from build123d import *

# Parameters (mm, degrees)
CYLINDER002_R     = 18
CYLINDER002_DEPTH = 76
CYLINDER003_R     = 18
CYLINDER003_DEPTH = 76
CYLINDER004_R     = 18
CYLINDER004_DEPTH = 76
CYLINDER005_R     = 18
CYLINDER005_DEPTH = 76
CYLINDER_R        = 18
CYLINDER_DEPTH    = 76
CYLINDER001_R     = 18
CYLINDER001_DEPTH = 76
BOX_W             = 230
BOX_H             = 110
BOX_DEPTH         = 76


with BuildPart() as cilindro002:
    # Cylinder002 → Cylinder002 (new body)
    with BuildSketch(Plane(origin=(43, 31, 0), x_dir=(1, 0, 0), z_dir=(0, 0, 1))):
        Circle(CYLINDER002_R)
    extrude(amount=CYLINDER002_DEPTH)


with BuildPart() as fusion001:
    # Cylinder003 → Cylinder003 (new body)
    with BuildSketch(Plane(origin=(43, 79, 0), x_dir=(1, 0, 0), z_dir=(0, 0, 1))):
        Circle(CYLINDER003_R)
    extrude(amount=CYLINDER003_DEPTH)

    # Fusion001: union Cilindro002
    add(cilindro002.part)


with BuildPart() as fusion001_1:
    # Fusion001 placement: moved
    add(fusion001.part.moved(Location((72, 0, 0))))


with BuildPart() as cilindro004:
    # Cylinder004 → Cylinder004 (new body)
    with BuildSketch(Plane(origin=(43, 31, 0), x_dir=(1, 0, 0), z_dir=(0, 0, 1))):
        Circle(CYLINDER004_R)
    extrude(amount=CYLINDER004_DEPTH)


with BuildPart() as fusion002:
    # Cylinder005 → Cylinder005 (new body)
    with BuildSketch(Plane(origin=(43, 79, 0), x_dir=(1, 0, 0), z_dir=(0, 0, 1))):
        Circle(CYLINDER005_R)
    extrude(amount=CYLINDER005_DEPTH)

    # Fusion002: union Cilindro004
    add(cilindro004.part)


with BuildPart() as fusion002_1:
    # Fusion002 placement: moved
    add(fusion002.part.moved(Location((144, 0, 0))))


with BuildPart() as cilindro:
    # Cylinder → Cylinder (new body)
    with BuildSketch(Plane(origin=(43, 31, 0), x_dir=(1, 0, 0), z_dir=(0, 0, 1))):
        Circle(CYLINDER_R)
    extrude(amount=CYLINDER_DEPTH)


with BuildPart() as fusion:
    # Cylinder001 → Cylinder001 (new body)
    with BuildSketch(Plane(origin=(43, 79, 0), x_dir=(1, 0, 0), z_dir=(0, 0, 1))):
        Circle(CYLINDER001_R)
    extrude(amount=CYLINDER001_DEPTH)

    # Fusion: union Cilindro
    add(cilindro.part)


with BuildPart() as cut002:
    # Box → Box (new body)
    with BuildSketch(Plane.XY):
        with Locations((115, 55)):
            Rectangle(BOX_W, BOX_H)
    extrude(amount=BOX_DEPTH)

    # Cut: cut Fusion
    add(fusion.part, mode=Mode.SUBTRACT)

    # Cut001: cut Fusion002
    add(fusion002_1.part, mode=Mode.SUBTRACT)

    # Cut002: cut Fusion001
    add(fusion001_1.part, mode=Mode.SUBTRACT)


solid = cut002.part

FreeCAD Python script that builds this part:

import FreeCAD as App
import Part
import Sketcher

V = App.Vector

doc = App.newDocument("Part")
params = doc.addObject("Spreadsheet::Sheet", "Params")
for row, (alias, value) in enumerate([
    ("sketch1_diameter", "36 mm"),
    ("pad1_length", "76 mm"),
    ("sketch2_diameter", "36 mm"),
    ("pad2_length", "76 mm"),
    ("sketch3_diameter", "36 mm"),
    ("pad3_length", "76 mm"),
    ("sketch4_diameter", "36 mm"),
    ("pad4_length", "76 mm"),
    ("sketch5_diameter", "36 mm"),
    ("pad5_length", "76 mm"),
    ("sketch6_diameter", "36 mm"),
    ("pad6_length", "76 mm"),
    ("sketch7_width", "230 mm"),
    ("sketch7_height", "110 mm"),
    ("pad7_length", "76 mm"),
], start=1):
    params.set(f"A{row}", alias)
    params.set(f"B{row}", "=" + value)
    params.setAlias(f"B{row}", alias)

body = doc.addObject("PartDesign::Body", "Body")

# Sketch on XY plane
sketch1 = doc.addObject("Sketcher::SketchObject", "Sketch")
body.addObject(sketch1)
sketch1.AttachmentSupport = (doc.XY_Plane, [""])
sketch1.MapMode = "FlatFace"
sketch1.addGeometry(Part.Circle(V(43, 31, 0), V(0, 0, 1), 18), False)
sketch1.addConstraint(Sketcher.Constraint("Diameter", 0, 36.0))
sketch1.addConstraint(Sketcher.Constraint("DistanceX", -1, 1, 0, 3, 43.0))
sketch1.addConstraint(Sketcher.Constraint("DistanceY", -1, 1, 0, 3, 31.0))
sketch1.setExpression("Constraints[0]", "Params.sketch1_diameter")
pad1 = doc.addObject("PartDesign::Pad", "Pad")
body.addObject(pad1)
pad1.Profile = sketch1
pad1.setExpression("Length", "Params.pad1_length")
body2 = doc.addObject("PartDesign::Body", "Body001")
body2.AllowCompound = True

# Sketch on XY plane
sketch2 = doc.addObject("Sketcher::SketchObject", "Sketch001")
body2.addObject(sketch2)
sketch2.AttachmentSupport = (doc.getObject("XY_Plane001"), [""])
sketch2.MapMode = "FlatFace"
sketch2.addGeometry(Part.Circle(V(43, 79, 0), V(0, 0, 1), 18), False)
sketch2.addConstraint(Sketcher.Constraint("Diameter", 0, 36.0))
sketch2.addConstraint(Sketcher.Constraint("DistanceX", -1, 1, 0, 3, 43.0))
sketch2.addConstraint(Sketcher.Constraint("DistanceY", -1, 1, 0, 3, 79.0))
sketch2.setExpression("Constraints[0]", "Params.sketch2_diameter")
pad2 = doc.addObject("PartDesign::Pad", "Pad001")
body2.addObject(pad2)
pad2.Profile = sketch2
pad2.setExpression("Length", "Params.pad2_length")
doc.recompute()

boolean = doc.addObject("PartDesign::Boolean", "Boolean")
body2.addObject(boolean)
boolean.Type = "Fuse"
boolean.addObjects([body])
body3 = doc.addObject("PartDesign::Body", "Body002")
body3.AllowCompound = True
doc.recompute()

body2.Placement = App.Placement(V(72, 0, 0), App.Rotation(V(0, 0, 1), 0))
boolean2 = doc.addObject("PartDesign::Boolean", "Boolean001")
body3.addObject(boolean2)
boolean2.Type = "Fuse"
boolean2.addObjects([body2])
body4 = doc.addObject("PartDesign::Body", "Body003")

# Sketch on XY plane
sketch3 = doc.addObject("Sketcher::SketchObject", "Sketch002")
body4.addObject(sketch3)
sketch3.AttachmentSupport = (doc.getObject("XY_Plane003"), [""])
sketch3.MapMode = "FlatFace"
sketch3.addGeometry(Part.Circle(V(43, 31, 0), V(0, 0, 1), 18), False)
sketch3.addConstraint(Sketcher.Constraint("Diameter", 0, 36.0))
sketch3.addConstraint(Sketcher.Constraint("DistanceX", -1, 1, 0, 3, 43.0))
sketch3.addConstraint(Sketcher.Constraint("DistanceY", -1, 1, 0, 3, 31.0))
sketch3.setExpression("Constraints[0]", "Params.sketch3_diameter")
pad3 = doc.addObject("PartDesign::Pad", "Pad002")
body4.addObject(pad3)
pad3.Profile = sketch3
pad3.setExpression("Length", "Params.pad3_length")
body5 = doc.addObject("PartDesign::Body", "Body004")
body5.AllowCompound = True

# Sketch on XY plane
sketch4 = doc.addObject("Sketcher::SketchObject", "Sketch003")
body5.addObject(sketch4)
sketch4.AttachmentSupport = (doc.getObject("XY_Plane004"), [""])
sketch4.MapMode = "FlatFace"
sketch4.addGeometry(Part.Circle(V(43, 79, 0), V(0, 0, 1), 18), False)
sketch4.addConstraint(Sketcher.Constraint("Diameter", 0, 36.0))
sketch4.addConstraint(Sketcher.Constraint("DistanceX", -1, 1, 0, 3, 43.0))
sketch4.addConstraint(Sketcher.Constraint("DistanceY", -1, 1, 0, 3, 79.0))
sketch4.setExpression("Constraints[0]", "Params.sketch4_diameter")
pad4 = doc.addObject("PartDesign::Pad", "Pad003")
body5.addObject(pad4)
pad4.Profile = sketch4
pad4.setExpression("Length", "Params.pad4_length")
doc.recompute()

boolean3 = doc.addObject("PartDesign::Boolean", "Boolean002")
body5.addObject(boolean3)
boolean3.Type = "Fuse"
boolean3.addObjects([body4])
body6 = doc.addObject("PartDesign::Body", "Body005")
body6.AllowCompound = True
doc.recompute()

body5.Placement = App.Placement(V(144, 0, 0), App.Rotation(V(0, 0, 1), 0))
boolean4 = doc.addObject("PartDesign::Boolean", "Boolean003")
body6.addObject(boolean4)
boolean4.Type = "Fuse"
boolean4.addObjects([body5])
body7 = doc.addObject("PartDesign::Body", "Body006")

# Sketch on XY plane
sketch5 = doc.addObject("Sketcher::SketchObject", "Sketch004")
body7.addObject(sketch5)
sketch5.AttachmentSupport = (doc.getObject("XY_Plane006"), [""])
sketch5.MapMode = "FlatFace"
sketch5.addGeometry(Part.Circle(V(43, 31, 0), V(0, 0, 1), 18), False)
sketch5.addConstraint(Sketcher.Constraint("Diameter", 0, 36.0))
sketch5.addConstraint(Sketcher.Constraint("DistanceX", -1, 1, 0, 3, 43.0))
sketch5.addConstraint(Sketcher.Constraint("DistanceY", -1, 1, 0, 3, 31.0))
sketch5.setExpression("Constraints[0]", "Params.sketch5_diameter")
pad5 = doc.addObject("PartDesign::Pad", "Pad004")
body7.addObject(pad5)
pad5.Profile = sketch5
pad5.setExpression("Length", "Params.pad5_length")
body8 = doc.addObject("PartDesign::Body", "Body007")
body8.AllowCompound = True

# Sketch on XY plane
sketch6 = doc.addObject("Sketcher::SketchObject", "Sketch005")
body8.addObject(sketch6)
sketch6.AttachmentSupport = (doc.getObject("XY_Plane007"), [""])
sketch6.MapMode = "FlatFace"
sketch6.addGeometry(Part.Circle(V(43, 79, 0), V(0, 0, 1), 18), False)
sketch6.addConstraint(Sketcher.Constraint("Diameter", 0, 36.0))
sketch6.addConstraint(Sketcher.Constraint("DistanceX", -1, 1, 0, 3, 43.0))
sketch6.addConstraint(Sketcher.Constraint("DistanceY", -1, 1, 0, 3, 79.0))
sketch6.setExpression("Constraints[0]", "Params.sketch6_diameter")
pad6 = doc.addObject("PartDesign::Pad", "Pad005")
body8.addObject(pad6)
pad6.Profile = sketch6
pad6.setExpression("Length", "Params.pad6_length")
doc.recompute()

boolean5 = doc.addObject("PartDesign::Boolean", "Boolean004")
body8.addObject(boolean5)
boolean5.Type = "Fuse"
boolean5.addObjects([body7])
body9 = doc.addObject("PartDesign::Body", "Body008")

# Sketch on XY plane
sketch7 = doc.addObject("Sketcher::SketchObject", "Sketch006")
body9.addObject(sketch7)
sketch7.AttachmentSupport = (doc.getObject("XY_Plane008"), [""])
sketch7.MapMode = "FlatFace"
sketch7.addGeometry(Part.LineSegment(V(0, 110, 0), V(0, 0, 0)), False)
sketch7.addGeometry(Part.LineSegment(V(0, 0, 0), V(230, 0, 0)), False)
sketch7.addGeometry(Part.LineSegment(V(230, 0, 0), V(230, 110, 0)), False)
sketch7.addGeometry(Part.LineSegment(V(230, 110, 0), V(0, 110, 0)), False)
sketch7.addConstraint(Sketcher.Constraint("Coincident", 0, 2, 1, 1))
sketch7.addConstraint(Sketcher.Constraint("Coincident", 1, 2, 2, 1))
sketch7.addConstraint(Sketcher.Constraint("Coincident", 2, 2, 3, 1))
sketch7.addConstraint(Sketcher.Constraint("Coincident", 3, 2, 0, 1))
sketch7.addConstraint(Sketcher.Constraint("Vertical", 0))
sketch7.addConstraint(Sketcher.Constraint("Horizontal", 1))
sketch7.addConstraint(Sketcher.Constraint("Vertical", 2))
sketch7.addConstraint(Sketcher.Constraint("Horizontal", 3))
sketch7.addConstraint(Sketcher.Constraint("Coincident", 0, 2, -1, 1))
sketch7.addConstraint(Sketcher.Constraint("DistanceX", 1, 1, 1, 2, 230.0))
sketch7.addConstraint(Sketcher.Constraint("DistanceY", 0, 2, 0, 1, 110.0))
sketch7.setExpression("Constraints[9]", "Params.sketch7_width")
sketch7.setExpression("Constraints[10]", "Params.sketch7_height")
pad7 = doc.addObject("PartDesign::Pad", "Pad006")
body9.addObject(pad7)
pad7.Profile = sketch7
pad7.setExpression("Length", "Params.pad7_length")
doc.recompute()

boolean6 = doc.addObject("PartDesign::Boolean", "Boolean005")
body9.addObject(boolean6)
boolean6.Type = "Cut"
boolean6.addObjects([body8])
doc.recompute()

boolean7 = doc.addObject("PartDesign::Boolean", "Boolean006")
body9.addObject(boolean7)
boolean7.Type = "Cut"
boolean7.addObjects([body6])
doc.recompute()

boolean8 = doc.addObject("PartDesign::Boolean", "Boolean007")
body9.addObject(boolean8)
boolean8.Type = "Cut"
boolean8.addObjects([body3])

doc.recompute()
